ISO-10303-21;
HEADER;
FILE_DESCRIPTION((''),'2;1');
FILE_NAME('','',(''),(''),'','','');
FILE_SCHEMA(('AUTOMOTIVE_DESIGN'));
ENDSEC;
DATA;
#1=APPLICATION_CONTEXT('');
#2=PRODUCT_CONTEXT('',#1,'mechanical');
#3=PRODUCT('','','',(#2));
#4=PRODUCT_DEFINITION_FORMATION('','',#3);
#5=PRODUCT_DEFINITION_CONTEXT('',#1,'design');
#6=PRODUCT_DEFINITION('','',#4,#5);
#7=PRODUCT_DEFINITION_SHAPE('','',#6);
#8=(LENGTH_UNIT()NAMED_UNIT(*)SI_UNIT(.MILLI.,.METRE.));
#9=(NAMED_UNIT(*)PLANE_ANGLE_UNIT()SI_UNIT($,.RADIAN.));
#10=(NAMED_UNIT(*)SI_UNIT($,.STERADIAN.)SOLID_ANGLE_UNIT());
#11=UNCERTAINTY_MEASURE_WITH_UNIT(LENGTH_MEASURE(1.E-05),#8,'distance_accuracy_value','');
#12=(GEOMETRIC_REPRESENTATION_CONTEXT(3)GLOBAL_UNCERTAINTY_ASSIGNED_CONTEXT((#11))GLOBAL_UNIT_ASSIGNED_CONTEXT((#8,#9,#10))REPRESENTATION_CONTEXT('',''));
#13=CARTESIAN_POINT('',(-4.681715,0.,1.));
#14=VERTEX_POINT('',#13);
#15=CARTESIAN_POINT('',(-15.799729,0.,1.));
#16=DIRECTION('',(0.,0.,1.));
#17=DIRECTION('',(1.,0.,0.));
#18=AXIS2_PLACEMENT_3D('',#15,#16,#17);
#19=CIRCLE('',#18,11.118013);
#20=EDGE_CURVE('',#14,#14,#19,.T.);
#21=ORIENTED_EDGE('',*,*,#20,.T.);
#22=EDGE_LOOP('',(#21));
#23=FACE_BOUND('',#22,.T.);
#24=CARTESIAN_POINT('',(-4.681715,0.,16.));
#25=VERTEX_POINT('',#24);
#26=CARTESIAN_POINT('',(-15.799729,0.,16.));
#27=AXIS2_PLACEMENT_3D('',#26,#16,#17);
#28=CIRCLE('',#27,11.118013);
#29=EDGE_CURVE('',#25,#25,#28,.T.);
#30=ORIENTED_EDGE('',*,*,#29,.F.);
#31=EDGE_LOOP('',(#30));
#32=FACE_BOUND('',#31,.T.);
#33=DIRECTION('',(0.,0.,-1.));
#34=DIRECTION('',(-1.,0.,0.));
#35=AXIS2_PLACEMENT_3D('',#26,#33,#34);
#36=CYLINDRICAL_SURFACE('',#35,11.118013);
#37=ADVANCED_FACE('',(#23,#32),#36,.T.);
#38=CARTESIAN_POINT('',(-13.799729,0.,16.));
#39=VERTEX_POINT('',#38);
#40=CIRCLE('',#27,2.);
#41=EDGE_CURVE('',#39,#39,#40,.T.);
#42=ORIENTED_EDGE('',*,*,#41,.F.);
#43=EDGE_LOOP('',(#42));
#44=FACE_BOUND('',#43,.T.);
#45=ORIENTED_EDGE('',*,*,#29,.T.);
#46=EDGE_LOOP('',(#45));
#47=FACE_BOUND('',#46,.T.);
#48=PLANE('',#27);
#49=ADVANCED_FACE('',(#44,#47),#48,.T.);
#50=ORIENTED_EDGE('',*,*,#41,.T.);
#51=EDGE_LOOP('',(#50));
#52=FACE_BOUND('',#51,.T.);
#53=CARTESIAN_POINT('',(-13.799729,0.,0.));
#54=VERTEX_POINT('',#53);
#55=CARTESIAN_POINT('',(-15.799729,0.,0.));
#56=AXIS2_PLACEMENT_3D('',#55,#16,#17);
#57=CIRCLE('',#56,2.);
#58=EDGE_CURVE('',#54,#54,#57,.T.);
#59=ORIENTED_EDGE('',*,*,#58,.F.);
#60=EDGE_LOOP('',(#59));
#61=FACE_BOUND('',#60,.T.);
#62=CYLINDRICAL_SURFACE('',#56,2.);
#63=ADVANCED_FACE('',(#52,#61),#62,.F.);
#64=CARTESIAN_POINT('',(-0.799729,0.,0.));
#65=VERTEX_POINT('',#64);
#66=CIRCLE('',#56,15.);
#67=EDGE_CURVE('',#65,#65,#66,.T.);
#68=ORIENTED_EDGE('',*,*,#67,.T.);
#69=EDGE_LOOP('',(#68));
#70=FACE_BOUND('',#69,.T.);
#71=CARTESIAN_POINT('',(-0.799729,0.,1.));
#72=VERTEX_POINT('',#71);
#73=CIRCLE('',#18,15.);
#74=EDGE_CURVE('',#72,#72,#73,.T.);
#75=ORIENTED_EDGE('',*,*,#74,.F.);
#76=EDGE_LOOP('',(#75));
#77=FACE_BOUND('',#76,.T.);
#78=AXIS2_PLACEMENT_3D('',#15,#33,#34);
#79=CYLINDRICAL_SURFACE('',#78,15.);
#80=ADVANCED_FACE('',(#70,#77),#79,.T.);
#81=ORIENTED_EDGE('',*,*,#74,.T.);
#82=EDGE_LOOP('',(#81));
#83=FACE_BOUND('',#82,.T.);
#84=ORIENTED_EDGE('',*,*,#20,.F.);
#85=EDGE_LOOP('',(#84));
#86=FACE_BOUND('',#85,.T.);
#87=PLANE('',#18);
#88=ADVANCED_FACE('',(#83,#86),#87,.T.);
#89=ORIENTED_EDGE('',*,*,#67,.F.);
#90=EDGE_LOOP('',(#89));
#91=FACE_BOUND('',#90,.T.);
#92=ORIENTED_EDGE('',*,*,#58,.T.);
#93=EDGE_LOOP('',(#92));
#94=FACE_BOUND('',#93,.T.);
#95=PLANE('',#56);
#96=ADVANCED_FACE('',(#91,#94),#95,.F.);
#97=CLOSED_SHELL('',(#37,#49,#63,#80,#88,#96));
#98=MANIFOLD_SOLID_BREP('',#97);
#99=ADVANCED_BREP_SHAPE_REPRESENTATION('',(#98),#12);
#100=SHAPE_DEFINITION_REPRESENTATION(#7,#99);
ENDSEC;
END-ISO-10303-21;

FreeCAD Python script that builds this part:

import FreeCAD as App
import Part
import Sketcher
from FreeCAD import Vector
Q = App.Units.Quantity

doc = App.newDocument("Part")
body = doc.addObject("PartDesign::Body", "Body")

# Sketch on XY plane
sketch1 = body.newObject("Sketcher::SketchObject", "Sketch")
sketch1.AttachmentSupport = (doc.getObject("XY_Plane"), [""])
sketch1.MapMode = "FlatFace"
sketch1.addGeometry(Part.Circle(Vector(-16, 0, 0), Vector(0, 0, 1), 15), False)
sketch1.addConstraint([
    Sketcher.Constraint("PointOnObject", 0, 3, -1),
    Sketcher.Constraint("Diameter", 0, Q("30 mm")),
    Sketcher.Constraint("DistanceX", 0, 3, -1, 1, Q("15.799729 mm")),
])
pad1 = body.newObject("PartDesign::Pad", "Pad")
pad1.Profile = sketch1
pad1.Length = 1

# Sketch on XY plane
sketch2 = body.newObject("Sketcher::SketchObject", "Sketch001")
sketch2.AttachmentSupport = (doc.getObject("XY_Plane"), [""])
sketch2.MapMode = "FlatFace"
sketch2.AttachmentOffset = App.Placement(Vector(0, 0, 1), App.Rotation())
sketch2.addGeometry(Part.Circle(Vector(-16, 0, 0), Vector(0, 0, 1), 11), False)
sketch2.addConstraint([
    Sketcher.Constraint("PointOnObject", 0, 3, -1),
    Sketcher.Constraint("Diameter", 0, Q("22.236027 mm")),
    Sketcher.Constraint("DistanceX", 0, 3, -1, 1, Q("15.799729 mm")),
])
pad2 = body.newObject("PartDesign::Pad", "Pad001")
pad2.Profile = sketch2
pad2.Length = 15

# Sketch on XY plane
sketch3 = body.newObject("Sketcher::SketchObject", "Sketch002")
sketch3.AttachmentSupport = (doc.getObject("XY_Plane"), [""])
sketch3.MapMode = "FlatFace"
sketch3.AttachmentOffset = App.Placement(Vector(0, 0, 16), App.Rotation())
sketch3.addGeometry(Part.Circle(Vector(-15.8, 0, 0), Vector(0, 0, 1), 2), False)
sketch3.addConstraint([
    Sketcher.Constraint("PointOnObject", 0, 3, -1),
    Sketcher.Constraint("Diameter", 0, Q("4 mm")),
    Sketcher.Constraint("DistanceX", 0, 3, -1, 1, Q("15.799729 mm")),
])
pocket1 = body.newObject("PartDesign::Pocket", "Pocket")
pocket1.Profile = sketch3
pocket1.Type = "ThroughAll"

doc.recompute()
